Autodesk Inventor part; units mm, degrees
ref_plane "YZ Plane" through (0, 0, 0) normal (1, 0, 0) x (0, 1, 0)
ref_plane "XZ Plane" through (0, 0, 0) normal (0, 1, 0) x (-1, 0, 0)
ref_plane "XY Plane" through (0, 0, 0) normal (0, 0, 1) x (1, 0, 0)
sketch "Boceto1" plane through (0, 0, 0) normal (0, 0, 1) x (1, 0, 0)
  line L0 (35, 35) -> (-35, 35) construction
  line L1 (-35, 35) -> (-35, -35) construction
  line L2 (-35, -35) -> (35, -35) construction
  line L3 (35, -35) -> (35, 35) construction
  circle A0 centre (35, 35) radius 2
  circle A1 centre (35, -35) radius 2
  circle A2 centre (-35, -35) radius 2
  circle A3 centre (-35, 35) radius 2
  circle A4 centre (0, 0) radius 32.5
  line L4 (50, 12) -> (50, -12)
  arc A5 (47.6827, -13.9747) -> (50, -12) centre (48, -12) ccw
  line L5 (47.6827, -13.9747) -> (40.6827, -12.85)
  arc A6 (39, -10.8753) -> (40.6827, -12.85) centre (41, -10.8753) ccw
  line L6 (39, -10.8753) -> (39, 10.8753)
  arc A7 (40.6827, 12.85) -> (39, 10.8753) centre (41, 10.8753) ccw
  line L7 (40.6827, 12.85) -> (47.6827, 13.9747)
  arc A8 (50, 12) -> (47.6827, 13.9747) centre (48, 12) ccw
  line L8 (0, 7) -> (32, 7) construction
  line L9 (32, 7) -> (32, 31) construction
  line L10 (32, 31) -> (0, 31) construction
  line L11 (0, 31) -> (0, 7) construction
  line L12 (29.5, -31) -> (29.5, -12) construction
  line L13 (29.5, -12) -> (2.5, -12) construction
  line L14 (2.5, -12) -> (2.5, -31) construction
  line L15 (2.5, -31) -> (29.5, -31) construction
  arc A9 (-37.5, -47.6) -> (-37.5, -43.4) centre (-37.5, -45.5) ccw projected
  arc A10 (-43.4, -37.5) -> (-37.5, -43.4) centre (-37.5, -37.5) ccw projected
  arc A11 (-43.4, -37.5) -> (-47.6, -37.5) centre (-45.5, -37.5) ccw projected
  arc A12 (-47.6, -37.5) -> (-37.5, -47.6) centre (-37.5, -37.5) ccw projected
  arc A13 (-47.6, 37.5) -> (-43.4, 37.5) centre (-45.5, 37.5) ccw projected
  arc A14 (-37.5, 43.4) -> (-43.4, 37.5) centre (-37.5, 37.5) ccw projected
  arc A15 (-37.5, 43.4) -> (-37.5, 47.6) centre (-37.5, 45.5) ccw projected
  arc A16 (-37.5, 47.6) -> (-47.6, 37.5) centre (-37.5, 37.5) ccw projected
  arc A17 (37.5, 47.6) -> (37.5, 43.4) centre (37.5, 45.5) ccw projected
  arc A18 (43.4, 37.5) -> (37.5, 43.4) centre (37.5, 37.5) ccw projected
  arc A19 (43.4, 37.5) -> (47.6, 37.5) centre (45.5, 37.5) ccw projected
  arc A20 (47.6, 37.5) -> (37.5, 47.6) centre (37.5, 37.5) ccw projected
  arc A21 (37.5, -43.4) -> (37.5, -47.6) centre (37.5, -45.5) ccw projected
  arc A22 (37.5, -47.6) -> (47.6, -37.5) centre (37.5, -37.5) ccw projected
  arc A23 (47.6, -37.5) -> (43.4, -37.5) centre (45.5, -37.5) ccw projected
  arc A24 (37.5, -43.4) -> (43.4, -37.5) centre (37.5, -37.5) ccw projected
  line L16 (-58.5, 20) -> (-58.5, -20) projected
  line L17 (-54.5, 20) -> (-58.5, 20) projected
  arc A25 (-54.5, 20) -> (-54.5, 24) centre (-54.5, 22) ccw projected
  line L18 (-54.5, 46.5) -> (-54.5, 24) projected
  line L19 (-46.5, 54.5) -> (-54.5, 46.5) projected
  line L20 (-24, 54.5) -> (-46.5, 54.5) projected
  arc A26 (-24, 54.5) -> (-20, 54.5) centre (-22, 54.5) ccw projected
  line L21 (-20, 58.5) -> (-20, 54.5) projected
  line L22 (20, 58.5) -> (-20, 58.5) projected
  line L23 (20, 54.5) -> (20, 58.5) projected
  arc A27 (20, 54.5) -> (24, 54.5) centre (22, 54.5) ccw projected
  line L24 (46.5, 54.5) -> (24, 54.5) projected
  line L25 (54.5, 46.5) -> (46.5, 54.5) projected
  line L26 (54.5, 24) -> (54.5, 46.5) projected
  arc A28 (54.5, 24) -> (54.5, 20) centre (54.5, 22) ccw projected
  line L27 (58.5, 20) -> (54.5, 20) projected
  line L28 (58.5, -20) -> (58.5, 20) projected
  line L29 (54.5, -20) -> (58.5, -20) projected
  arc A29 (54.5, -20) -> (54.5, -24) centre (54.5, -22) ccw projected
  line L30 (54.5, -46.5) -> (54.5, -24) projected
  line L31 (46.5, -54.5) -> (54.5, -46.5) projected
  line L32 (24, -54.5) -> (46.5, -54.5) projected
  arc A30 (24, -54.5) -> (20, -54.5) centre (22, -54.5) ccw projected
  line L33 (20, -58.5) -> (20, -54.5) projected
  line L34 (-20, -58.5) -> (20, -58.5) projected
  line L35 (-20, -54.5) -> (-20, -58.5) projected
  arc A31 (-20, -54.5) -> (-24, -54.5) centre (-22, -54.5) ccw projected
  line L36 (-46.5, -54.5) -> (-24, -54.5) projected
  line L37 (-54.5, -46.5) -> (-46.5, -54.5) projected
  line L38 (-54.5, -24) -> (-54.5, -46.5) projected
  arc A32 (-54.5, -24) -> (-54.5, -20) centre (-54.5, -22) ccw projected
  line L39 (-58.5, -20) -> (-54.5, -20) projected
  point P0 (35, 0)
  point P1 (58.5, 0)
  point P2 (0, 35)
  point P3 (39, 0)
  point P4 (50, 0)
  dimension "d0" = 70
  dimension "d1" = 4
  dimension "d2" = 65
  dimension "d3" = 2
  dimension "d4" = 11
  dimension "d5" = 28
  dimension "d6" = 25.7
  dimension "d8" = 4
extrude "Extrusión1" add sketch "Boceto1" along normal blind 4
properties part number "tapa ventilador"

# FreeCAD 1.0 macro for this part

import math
import FreeCAD as App
import Part
import Sketcher

V = App.Vector

doc = App.newDocument("Part")
body = doc.addObject("PartDesign::Body", "Body")

sketch1 = body.newObject("Sketcher::SketchObject", "Sketch")
sketch1.AttachmentSupport = (doc.getObject("XY_Plane"), [""])
sketch1.MapMode = "FlatFace"
sketch1.addGeometry(Part.LineSegment(V(-54.5, 20, 0), V(-58.5, 20, 0)), False)
sketch1.addGeometry(Part.LineSegment(V(-58.5, 20, 0), V(-58.5, -20, 0)), False)
sketch1.addGeometry(Part.LineSegment(V(-58.5, -20, 0), V(-54.5, -20, 0)), False)
sketch1.addGeometry(Part.ArcOfCircle(Part.Circle(V(-54.5, -22, 0), V(0, 0, 1), 2), math.radians(-90), math.radians(90)), False)
sketch1.addGeometry(Part.LineSegment(V(-54.5, -24, 0), V(-54.5, -46.5, 0)), False)
sketch1.addGeometry(Part.LineSegment(V(-54.5, -46.5, 0), V(-46.5, -54.5, 0)), False)
sketch1.addGeometry(Part.LineSegment(V(-46.5, -54.5, 0), V(-24, -54.5, 0)), False)
sketch1.addGeometry(Part.ArcOfCircle(Part.Circle(V(-22, -54.5, 0), V(0, 0, 1), 2), math.radians(0), math.radians(180)), False)
sketch1.addGeometry(Part.LineSegment(V(-20, -54.5, 0), V(-20, -58.5, 0)), False)
sketch1.addGeometry(Part.LineSegment(V(-20, -58.5, 0), V(20, -58.5, 0)), False)
sketch1.addGeometry(Part.LineSegment(V(20, -58.5, 0), V(20, -54.5, 0)), False)
sketch1.addGeometry(Part.ArcOfCircle(Part.Circle(V(22, -54.5, 0), V(0, 0, 1), 2), math.radians(0), math.radians(180)), False)
sketch1.addGeometry(Part.LineSegment(V(24, -54.5, 0), V(46.5, -54.5, 0)), False)
sketch1.addGeometry(Part.LineSegment(V(46.5, -54.5, 0), V(54.5, -46.5, 0)), False)
sketch1.addGeometry(Part.LineSegment(V(54.5, -46.5, 0), V(54.5, -24, 0)), False)
sketch1.addGeometry(Part.ArcOfCircle(Part.Circle(V(54.5, -22, 0), V(0, 0, 1), 2), math.radians(90), math.radians(270)), False)
sketch1.addGeometry(Part.LineSegment(V(54.5, -20, 0), V(58.5, -20, 0)), False)
sketch1.addGeometry(Part.LineSegment(V(58.5, -20, 0), V(58.5, 20, 0)), False)
sketch1.addGeometry(Part.LineSegment(V(58.5, 20, 0), V(54.5, 20, 0)), False)
sketch1.addGeometry(Part.ArcOfCircle(Part.Circle(V(54.5, 22, 0), V(0, 0, 1), 2), math.radians(90), math.radians(270)), False)
sketch1.addGeometry(Part.LineSegment(V(54.5, 24, 0), V(54.5, 46.5, 0)), False)
sketch1.addGeometry(Part.LineSegment(V(54.5, 46.5, 0), V(46.5, 54.5, 0)), False)
sketch1.addGeometry(Part.LineSegment(V(46.5, 54.5, 0), V(24, 54.5, 0)), False)
sketch1.addGeometry(Part.ArcOfCircle(Part.Circle(V(22, 54.5, 0), V(0, 0, 1), 2), math.radians(180), math.radians(360)), False)
sketch1.addGeometry(Part.LineSegment(V(20, 54.5, 0), V(20, 58.5, 0)), False)
sketch1.addGeometry(Part.LineSegment(V(20, 58.5, 0), V(-20, 58.5, 0)), False)
sketch1.addGeometry(Part.LineSegment(V(-20, 58.5, 0), V(-20, 54.5, 0)), False)
sketch1.addGeometry(Part.ArcOfCircle(Part.Circle(V(-22, 54.5, 0), V(0, 0, 1), 2), math.radians(180), math.radians(360)), False)
sketch1.addGeometry(Part.LineSegment(V(-24, 54.5, 0), V(-46.5, 54.5, 0)), False)
sketch1.addGeometry(Part.LineSegment(V(-46.5, 54.5, 0), V(-54.5, 46.5, 0)), False)
sketch1.addGeometry(Part.LineSegment(V(-54.5, 46.5, 0), V(-54.5, 24, 0)), False)
sketch1.addGeometry(Part.ArcOfCircle(Part.Circle(V(-54.5, 22, 0), V(0, 0, 1), 2), math.radians(-90), math.radians(90)), False)
sketch1.addGeometry(Part.ArcOfCircle(Part.Circle(V(-37.5, -45.5, 0), V(0, 0, 1), 2.1), math.radians(-90), math.radians(90)), False)
sketch1.addGeometry(Part.ArcOfCircle(Part.Circle(V(-37.5, -37.5, 0), V(0, 0, 1), 10.1), math.radians(180), math.radians(270)), False)
sketch1.addGeometry(Part.ArcOfCircle(Part.Circle(V(-45.5, -37.5, 0), V(0, 0, 1), 2.1), math.radians(0), math.radians(180)), False)
sketch1.addGeometry(Part.ArcOfCircle(Part.Circle(V(-37.5, -37.5, 0), V(0, 0, 1), 5.9), math.radians(180), math.radians(270)), False)
sketch1.addGeometry(Part.Circle(V(-35, -35, 0), V(0, 0, 1), 2), False)
sketch1.addGeometry(Part.ArcOfCircle(Part.Circle(V(37.5, -45.5, 0), V(0, 0, 1), 2.1), math.radians(90), math.radians(270)), False)
sketch1.addGeometry(Part.ArcOfCircle(Part.Circle(V(37.5, -37.5, 0), V(0, 0, 1), 5.9), math.radians(-90), math.radians(0)), False)
sketch1.addGeometry(Part.ArcOfCircle(Part.Circle(V(45.5, -37.5, 0), V(0, 0, 1), 2.1), math.radians(0), math.radians(180)), False)
sketch1.addGeometry(Part.ArcOfCircle(Part.Circle(V(37.5, -37.5, 0), V(0, 0, 1), 10.1), math.radians(-90), math.radians(0)), False)
sketch1.addGeometry(Part.Circle(V(35, -35, 0), V(0, 0, 1), 2), False)
sketch1.addGeometry(Part.ArcOfCircle(Part.Circle(V(48, 12, 0), V(0, 0, 1), 2), math.radians(0), math.radians(99)), False)
sketch1.addGeometry(Part.LineSegment(V(50, 12, 0), V(50, -12, 0)), False)
sketch1.addGeometry(Part.ArcOfCircle(Part.Circle(V(48, -12, 0), V(0, 0, 1), 2), math.radians(-99), math.radians(0)), False)
sketch1.addGeometry(Part.LineSegment(V(47.7, -14, 0), V(40.7, -12.8, 0)), False)
sketch1.addGeometry(Part.ArcOfCircle(Part.Circle(V(41, -10.9, 0), V(0, 0, 1), 2), math.radians(180), math.radians(261)), False)
sketch1.addGeometry(Part.LineSegment(V(39, -10.9, 0), V(39, 10.9, 0)), False)
sketch1.addGeometry(Part.ArcOfCircle(Part.Circle(V(41, 10.9, 0), V(0, 0, 1), 2), math.radians(99), math.radians(180)), False)
sketch1.addGeometry(Part.LineSegment(V(40.7, 12.8, 0), V(47.7, 14, 0)), False)
sketch1.addGeometry(Part.Circle(V(-35, 35, 0), V(0, 0, 1), 2), False)
sketch1.addGeometry(Part.ArcOfCircle(Part.Circle(V(-45.5, 37.5, 0), V(0, 0, 1), 2.1), math.radians(180), math.radians(360)), False)
sketch1.addGeometry(Part.ArcOfCircle(Part.Circle(V(-37.5, 37.5, 0), V(0, 0, 1), 10.1), math.radians(90), math.radians(180)), False)
sketch1.addGeometry(Part.ArcOfCircle(Part.Circle(V(-37.5, 45.5, 0), V(0, 0, 1), 2.1), math.radians(-90), math.radians(90)), False)
sketch1.addGeometry(Part.ArcOfCircle(Part.Circle(V(-37.5, 37.5, 0), V(0, 0, 1), 5.9), math.radians(90), math.radians(180)), False)
sketch1.addGeometry(Part.Circle(V(0, 0, 0), V(0, 0, 1), 32.5), False)
sketch1.addGeometry(Part.Circle(V(35, 35, 0), V(0, 0, 1), 2), False)
sketch1.addGeometry(Part.ArcOfCircle(Part.Circle(V(37.5, 45.5, 0), V(0, 0, 1), 2.1), math.radians(90), math.radians(270)), False)
sketch1.addGeometry(Part.ArcOfCircle(Part.Circle(V(37.5, 37.5, 0), V(0, 0, 1), 10.1), math.radians(0), math.radians(90)), False)
sketch1.addGeometry(Part.ArcOfCircle(Part.Circle(V(45.5, 37.5, 0), V(0, 0, 1), 2.1), math.radians(180), math.radians(360)), False)
sketch1.addGeometry(Part.ArcOfCircle(Part.Circle(V(37.5, 37.5, 0), V(0, 0, 1), 5.9), math.radians(0), math.radians(90)), False)
sketch1.addConstraint(Sketcher.Constraint("Coincident", 0, 2, 1, 1))
sketch1.addConstraint(Sketcher.Constraint("Coincident", 1, 2, 2, 1))
sketch1.addConstraint(Sketcher.Constraint("Tangent", 2, 2, 3, 2))
sketch1.addConstraint(Sketcher.Constraint("Coincident", 3, 1, 4, 1))
sketch1.addConstraint(Sketcher.Constraint("Coincident", 4, 2, 5, 1))
sketch1.addConstraint(Sketcher.Constraint("Coincident", 5, 2, 6, 1))
sketch1.addConstraint(Sketcher.Constraint("Coincident", 6, 2, 7, 2))
sketch1.addConstraint(Sketcher.Constraint("Tangent", 7, 1, 8, 1))
sketch1.addConstraint(Sketcher.Constraint("Coincident", 8, 2, 9, 1))
sketch1.addConstraint(Sketcher.Constraint("Coincident", 9, 2, 10, 1))
sketch1.addConstraint(Sketcher.Constraint("Tangent", 10, 2, 11, 2))
sketch1.addConstraint(Sketcher.Constraint("Coincident", 11, 1, 12, 1))
sketch1.addConstraint(Sketcher.Constraint("Coincident", 12, 2, 13, 1))
sketch1.addConstraint(Sketcher.Constraint("Coincident", 13, 2, 14, 1))
sketch1.addConstraint(Sketcher.Constraint("Coincident", 14, 2, 15, 2))
sketch1.addConstraint(Sketcher.Constraint("Tangent", 15, 1, 16, 1))
sketch1.addConstraint(Sketcher.Constraint("Coincident", 16, 2, 17, 1))
sketch1.addConstraint(Sketcher.Constraint("Coincident", 17, 2, 18, 1))
sketch1.addConstraint(Sketcher.Constraint("Tangent", 18, 2, 19, 2))
sketch1.addConstraint(Sketcher.Constraint("Coincident", 19, 1, 20, 1))
sketch1.addConstraint(Sketcher.Constraint("Coincident", 20, 2, 21, 1))
sketch1.addConstraint(Sketcher.Constraint("Coincident", 21, 2, 22, 1))
sketch1.addConstraint(Sketcher.Constraint("Coincident", 22, 2, 23, 2))
sketch1.addConstraint(Sketcher.Constraint("Tangent", 23, 1, 24, 1))
sketch1.addConstraint(Sketcher.Constraint("Coincident", 24, 2, 25, 1))
sketch1.addConstraint(Sketcher.Constraint("Coincident", 25, 2, 26, 1))
sketch1.addConstraint(Sketcher.Constraint("Tangent", 26, 2, 27, 2))
sketch1.addConstraint(Sketcher.Constraint("Coincident", 27, 1, 28, 1))
sketch1.addConstraint(Sketcher.Constraint("Coincident", 28, 2, 29, 1))
sketch1.addConstraint(Sketcher.Constraint("Coincident", 29, 2, 30, 1))
sketch1.addConstraint(Sketcher.Constraint("Coincident", 30, 2, 31, 2))
sketch1.addConstraint(Sketcher.Constraint("Tangent", 31, 1, 0, 1))
sketch1.addConstraint(Sketcher.Constraint("Tangent", 32, 1, 33, 2))
sketch1.addConstraint(Sketcher.Constraint("Tangent", 33, 1, 34, 2))
sketch1.addConstraint(Sketcher.Constraint("Tangent", 34, 1, 35, 1))
sketch1.addConstraint(Sketcher.Constraint("Tangent", 35, 2, 32, 2))
sketch1.addConstraint(Sketcher.Constraint("Tangent", 37, 1, 38, 1))
sketch1.addConstraint(Sketcher.Constraint("Tangent", 38, 2, 39, 2))
sketch1.addConstraint(Sketcher.Constraint("Tangent", 39, 1, 40, 2))
sketch1.addConstraint(Sketcher.Constraint("Tangent", 40, 1, 37, 2))
sketch1.addConstraint(Sketcher.Constraint("Tangent", 42, 1, 43, 1))
sketch1.addConstraint(Sketcher.Constraint("Tangent", 43, 2, 44, 2))
sketch1.addConstraint(Sketcher.Constraint("Tangent", 44, 1, 45, 1))
sketch1.addConstraint(Sketcher.Constraint("Tangent", 45, 2, 46, 2))
sketch1.addConstraint(Sketcher.Constraint("Tangent", 46, 1, 47, 1))
sketch1.addConstraint(Sketcher.Constraint("Tangent", 47, 2, 48, 2))
sketch1.addConstraint(Sketcher.Constraint("Tangent", 48, 1, 49, 1))
sketch1.addConstraint(Sketcher.Constraint("Tangent", 49, 2, 42, 2))
sketch1.addConstraint(Sketcher.Constraint("Tangent", 51, 1, 52, 2))
sketch1.addConstraint(Sketcher.Constraint("Tangent", 52, 1, 53, 2))
sketch1.addConstraint(Sketcher.Constraint("Tangent", 53, 1, 54, 1))
sketch1.addConstraint(Sketcher.Constraint("Tangent", 54, 2, 51, 2))
sketch1.addConstraint(Sketcher.Constraint("Tangent", 57, 1, 58, 2))
sketch1.addConstraint(Sketcher.Constraint("Tangent", 58, 1, 59, 2))
sketch1.addConstraint(Sketcher.Constraint("Tangent", 59, 1, 60, 1))
sketch1.addConstraint(Sketcher.Constraint("Tangent", 60, 2, 57, 2))
sketch1.addConstraint(Sketcher.Constraint("Horizontal", 0))
sketch1.addConstraint(Sketcher.Constraint("Vertical", 1))
sketch1.addConstraint(Sketcher.Constraint("Horizontal", 2))
sketch1.addConstraint(Sketcher.Constraint("Vertical", 4))
sketch1.addConstraint(Sketcher.Constraint("Horizontal", 6))
sketch1.addConstraint(Sketcher.Constraint("Vertical", 8))
sketch1.addConstraint(Sketcher.Constraint("Horizontal", 9))
sketch1.addConstraint(Sketcher.Constraint("Vertical", 10))
sketch1.addConstraint(Sketcher.Constraint("Horizontal", 12))
sketch1.addConstraint(Sketcher.Constraint("Vertical", 14))
sketch1.addConstraint(Sketcher.Constraint("Horizontal", 16))
sketch1.addConstraint(Sketcher.Constraint("Vertical", 17))
sketch1.addConstraint(Sketcher.Constraint("Horizontal", 18))
sketch1.addConstraint(Sketcher.Constraint("Vertical", 20))
sketch1.addConstraint(Sketcher.Constraint("Horizontal", 22))
sketch1.addConstraint(Sketcher.Constraint("Vertical", 24))
sketch1.addConstraint(Sketcher.Constraint("Horizontal", 25))
sketch1.addConstraint(Sketcher.Constraint("Vertical", 26))
sketch1.addConstraint(Sketcher.Constraint("Horizontal", 28))
sketch1.addConstraint(Sketcher.Constraint("Vertical", 30))
sketch1.addConstraint(Sketcher.Constraint("Vertical", 43))
sketch1.addConstraint(Sketcher.Constraint("Vertical", 47))
sketch1.addConstraint(Sketcher.Constraint("Coincident", 55, 3, -1, 1))
sketch1.addConstraint(Sketcher.Constraint("Coincident", 35, 3, 33, 3))
sketch1.addConstraint(Sketcher.Constraint("Coincident", 40, 3, 38, 3))
sketch1.addConstraint(Sketcher.Constraint("Coincident", 54, 3, 52, 3))
sketch1.addConstraint(Sketcher.Constraint("Coincident", 60, 3, 58, 3))
sketch1.addConstraint(Sketcher.Constraint("Equal", 3, 7))
sketch1.addConstraint(Sketcher.Constraint("Equal", 7, 11))
sketch1.addConstraint(Sketcher.Constraint("Equal", 11, 15))
sketch1.addConstraint(Sketcher.Constraint("Equal", 15, 19))
sketch1.addConstraint(Sketcher.Constraint("Equal", 19, 23))
sketch1.addConstraint(Sketcher.Constraint("Equal", 23, 27))
sketch1.addConstraint(Sketcher.Constraint("Equal", 27, 31))
sketch1.addConstraint(Sketcher.Constraint("Equal", 31, 36))
sketch1.addConstraint(Sketcher.Constraint("Equal", 34, 37))
sketch1.addConstraint(Sketcher.Constraint("Equal", 35, 38))
sketch1.addConstraint(Sketcher.Constraint("Equal", 36, 41))
sketch1.addConstraint(Sketcher.Constraint("Equal", 41, 42))
sketch1.addConstraint(Sketcher.Constraint("Equal", 42, 44))
sketch1.addConstraint(Sketcher.Constraint("Equal", 44, 46))
sketch1.addConstraint(Sketcher.Constraint("Equal", 46, 48))
sketch1.addConstraint(Sketcher.Constraint("Equal", 48, 50))
sketch1.addConstraint(Sketcher.Constraint("Equal", 39, 51))
sketch1.addConstraint(Sketcher.Constraint("Equal", 40, 52))
sketch1.addConstraint(Sketcher.Constraint("Equal", 50, 56))
sketch1.addConstraint(Sketcher.Constraint("Equal", 53, 57))
sketch1.addConstraint(Sketcher.Constraint("Equal", 52, 58))
sketch1.addConstraint(Sketcher.Constraint("Symmetric", 3, 3, 19, 3, -1, 1))
sketch1.addConstraint(Sketcher.Constraint("Symmetric", 7, 3, 23, 3, -1, 1))
sketch1.addConstraint(Sketcher.Constraint("Symmetric", 11, 3, 27, 3, -1, 1))
sketch1.addConstraint(Sketcher.Constraint("Symmetric", 15, 3, 31, 3, -1, 1))
sketch1.addConstraint(Sketcher.Constraint("Symmetric", 41, 3, 50, 3, -1, 1))
sketch1.addConstraint(Sketcher.Constraint("Symmetric", 39, 3, 51, 3, -1, 1))
sketch1.addConstraint(Sketcher.Constraint("Symmetric", 37, 3, 53, 3, -1, 1))
sketch1.addConstraint(Sketcher.Constraint("Symmetric", 36, 3, 56, 3, -1, 1))
sketch1.addConstraint(Sketcher.Constraint("Symmetric", 32, 3, 57, 3, -1, 1))
sketch1.addConstraint(Sketcher.Constraint("Symmetric", 34, 3, 59, 3, -1, 1))
sketch1.addConstraint(Sketcher.Constraint("Symmetric", 4, 2, 20, 2, -1, 1))
sketch1.addConstraint(Sketcher.Constraint("Symmetric", 5, 2, 21, 2, -1, 1))
sketch1.addConstraint(Sketcher.Constraint("Symmetric", 12, 2, 28, 2, -1, 1))
sketch1.addConstraint(Sketcher.Constraint("Symmetric", 13, 2, 29, 2, -1, 1))
sketch1.addConstraint(Sketcher.Constraint("Symmetric", 7, 3, 11, 3, -2))
sketch1.addConstraint(Sketcher.Constraint("Symmetric", 3, 3, 15, 3, -2))
sketch1.addConstraint(Sketcher.Constraint("Symmetric", 32, 3, 37, 3, -2))
sketch1.addConstraint(Sketcher.Constraint("Symmetric", 34, 3, 39, 3, -2))
sketch1.addConstraint(Sketcher.Constraint("Symmetric", 36, 3, 41, 3, -2))
sketch1.addConstraint(Sketcher.Constraint("Symmetric", 5, 2, 12, 2, -2))
sketch1.addConstraint(Sketcher.Constraint("Symmetric", 4, 2, 13, 2, -2))
sketch1.addConstraint(Sketcher.Constraint("Symmetric", 45, 2, 48, 1, -1))
sketch1.addConstraint(Sketcher.Constraint("Perpendicular", 5, 13))
sketch1.addConstraint(Sketcher.Constraint("Horizontal", 33, 3, 34, 3))
sketch1.addConstraint(Sketcher.Constraint("Horizontal", 11, 3, 5, 2))
sketch1.addConstraint(Sketcher.Constraint("Vertical", 32, 3, 33, 3))
sketch1.addConstraint(Sketcher.Constraint("Vertical", 2, 2, 3, 1))
sketch1.addConstraint(Sketcher.Constraint("Equal", 2, 16))
sketch1.addConstraint(Sketcher.Constraint("Equal", 25, 1))
sketch1.addConstraint(Sketcher.Constraint("Equal", 28, 4))
sketch1.addConstraint(Sketcher.Constraint("Equal", 18, 8))
sketch1.addConstraint(Sketcher.Constraint("Equal", 10, 24))
sketch1.addConstraint(Sketcher.Constraint("Diameter", 36, 4.0))
sketch1.addConstraint(Sketcher.Constraint("Diameter", 55, 65.0))
sketch1.addConstraint(Sketcher.Constraint("DistanceX", 0, 2, 0, 1, 4.0))
sketch1.addConstraint(Sketcher.Constraint("Radius", 32, 2.1))
sketch1.addConstraint(Sketcher.Constraint("Radius", 33, 10.1))
sketch1.addConstraint(Sketcher.Constraint("DistanceX", 9, 1, 9, 2, 40.0))
sketch1.addConstraint(Sketcher.Constraint("DistanceY", 43, 2, 43, 1, 24.0))
sketch1.addConstraint(Sketcher.Constraint("DistanceX", 6, 1, 6, 2, 22.5))
sketch1.addConstraint(Sketcher.Constraint("DistanceX", 36, 3, -1, 1, 35.0))
sketch1.addConstraint(Sketcher.Constraint("DistanceY", 36, 3, -1, 1, 35.0))
sketch1.addConstraint(Sketcher.Constraint("DistanceX", -1, 1, 42, 3, 48.0))
sketch1.addConstraint(Sketcher.Constraint("DistanceX", -1, 1, 46, 3, 41.0))
sketch1.addConstraint(Sketcher.Constraint("DistanceX", 3, 3, -1, 1, 54.5))
sketch1.addConstraint(Sketcher.Constraint("DistanceX", 32, 3, -1, 1, 37.5))
sketch1.addConstraint(Sketcher.Constraint("DistanceY", 32, 3, -1, 1, 45.5))
sketch1.addConstraint(Sketcher.Constraint("DistanceY", 45, 2, -1, 1, 12.85))
pad1 = body.newObject("PartDesign::Pad", "Pad")
pad1.Profile = sketch1
pad1.Length = 4

doc.recompute()
